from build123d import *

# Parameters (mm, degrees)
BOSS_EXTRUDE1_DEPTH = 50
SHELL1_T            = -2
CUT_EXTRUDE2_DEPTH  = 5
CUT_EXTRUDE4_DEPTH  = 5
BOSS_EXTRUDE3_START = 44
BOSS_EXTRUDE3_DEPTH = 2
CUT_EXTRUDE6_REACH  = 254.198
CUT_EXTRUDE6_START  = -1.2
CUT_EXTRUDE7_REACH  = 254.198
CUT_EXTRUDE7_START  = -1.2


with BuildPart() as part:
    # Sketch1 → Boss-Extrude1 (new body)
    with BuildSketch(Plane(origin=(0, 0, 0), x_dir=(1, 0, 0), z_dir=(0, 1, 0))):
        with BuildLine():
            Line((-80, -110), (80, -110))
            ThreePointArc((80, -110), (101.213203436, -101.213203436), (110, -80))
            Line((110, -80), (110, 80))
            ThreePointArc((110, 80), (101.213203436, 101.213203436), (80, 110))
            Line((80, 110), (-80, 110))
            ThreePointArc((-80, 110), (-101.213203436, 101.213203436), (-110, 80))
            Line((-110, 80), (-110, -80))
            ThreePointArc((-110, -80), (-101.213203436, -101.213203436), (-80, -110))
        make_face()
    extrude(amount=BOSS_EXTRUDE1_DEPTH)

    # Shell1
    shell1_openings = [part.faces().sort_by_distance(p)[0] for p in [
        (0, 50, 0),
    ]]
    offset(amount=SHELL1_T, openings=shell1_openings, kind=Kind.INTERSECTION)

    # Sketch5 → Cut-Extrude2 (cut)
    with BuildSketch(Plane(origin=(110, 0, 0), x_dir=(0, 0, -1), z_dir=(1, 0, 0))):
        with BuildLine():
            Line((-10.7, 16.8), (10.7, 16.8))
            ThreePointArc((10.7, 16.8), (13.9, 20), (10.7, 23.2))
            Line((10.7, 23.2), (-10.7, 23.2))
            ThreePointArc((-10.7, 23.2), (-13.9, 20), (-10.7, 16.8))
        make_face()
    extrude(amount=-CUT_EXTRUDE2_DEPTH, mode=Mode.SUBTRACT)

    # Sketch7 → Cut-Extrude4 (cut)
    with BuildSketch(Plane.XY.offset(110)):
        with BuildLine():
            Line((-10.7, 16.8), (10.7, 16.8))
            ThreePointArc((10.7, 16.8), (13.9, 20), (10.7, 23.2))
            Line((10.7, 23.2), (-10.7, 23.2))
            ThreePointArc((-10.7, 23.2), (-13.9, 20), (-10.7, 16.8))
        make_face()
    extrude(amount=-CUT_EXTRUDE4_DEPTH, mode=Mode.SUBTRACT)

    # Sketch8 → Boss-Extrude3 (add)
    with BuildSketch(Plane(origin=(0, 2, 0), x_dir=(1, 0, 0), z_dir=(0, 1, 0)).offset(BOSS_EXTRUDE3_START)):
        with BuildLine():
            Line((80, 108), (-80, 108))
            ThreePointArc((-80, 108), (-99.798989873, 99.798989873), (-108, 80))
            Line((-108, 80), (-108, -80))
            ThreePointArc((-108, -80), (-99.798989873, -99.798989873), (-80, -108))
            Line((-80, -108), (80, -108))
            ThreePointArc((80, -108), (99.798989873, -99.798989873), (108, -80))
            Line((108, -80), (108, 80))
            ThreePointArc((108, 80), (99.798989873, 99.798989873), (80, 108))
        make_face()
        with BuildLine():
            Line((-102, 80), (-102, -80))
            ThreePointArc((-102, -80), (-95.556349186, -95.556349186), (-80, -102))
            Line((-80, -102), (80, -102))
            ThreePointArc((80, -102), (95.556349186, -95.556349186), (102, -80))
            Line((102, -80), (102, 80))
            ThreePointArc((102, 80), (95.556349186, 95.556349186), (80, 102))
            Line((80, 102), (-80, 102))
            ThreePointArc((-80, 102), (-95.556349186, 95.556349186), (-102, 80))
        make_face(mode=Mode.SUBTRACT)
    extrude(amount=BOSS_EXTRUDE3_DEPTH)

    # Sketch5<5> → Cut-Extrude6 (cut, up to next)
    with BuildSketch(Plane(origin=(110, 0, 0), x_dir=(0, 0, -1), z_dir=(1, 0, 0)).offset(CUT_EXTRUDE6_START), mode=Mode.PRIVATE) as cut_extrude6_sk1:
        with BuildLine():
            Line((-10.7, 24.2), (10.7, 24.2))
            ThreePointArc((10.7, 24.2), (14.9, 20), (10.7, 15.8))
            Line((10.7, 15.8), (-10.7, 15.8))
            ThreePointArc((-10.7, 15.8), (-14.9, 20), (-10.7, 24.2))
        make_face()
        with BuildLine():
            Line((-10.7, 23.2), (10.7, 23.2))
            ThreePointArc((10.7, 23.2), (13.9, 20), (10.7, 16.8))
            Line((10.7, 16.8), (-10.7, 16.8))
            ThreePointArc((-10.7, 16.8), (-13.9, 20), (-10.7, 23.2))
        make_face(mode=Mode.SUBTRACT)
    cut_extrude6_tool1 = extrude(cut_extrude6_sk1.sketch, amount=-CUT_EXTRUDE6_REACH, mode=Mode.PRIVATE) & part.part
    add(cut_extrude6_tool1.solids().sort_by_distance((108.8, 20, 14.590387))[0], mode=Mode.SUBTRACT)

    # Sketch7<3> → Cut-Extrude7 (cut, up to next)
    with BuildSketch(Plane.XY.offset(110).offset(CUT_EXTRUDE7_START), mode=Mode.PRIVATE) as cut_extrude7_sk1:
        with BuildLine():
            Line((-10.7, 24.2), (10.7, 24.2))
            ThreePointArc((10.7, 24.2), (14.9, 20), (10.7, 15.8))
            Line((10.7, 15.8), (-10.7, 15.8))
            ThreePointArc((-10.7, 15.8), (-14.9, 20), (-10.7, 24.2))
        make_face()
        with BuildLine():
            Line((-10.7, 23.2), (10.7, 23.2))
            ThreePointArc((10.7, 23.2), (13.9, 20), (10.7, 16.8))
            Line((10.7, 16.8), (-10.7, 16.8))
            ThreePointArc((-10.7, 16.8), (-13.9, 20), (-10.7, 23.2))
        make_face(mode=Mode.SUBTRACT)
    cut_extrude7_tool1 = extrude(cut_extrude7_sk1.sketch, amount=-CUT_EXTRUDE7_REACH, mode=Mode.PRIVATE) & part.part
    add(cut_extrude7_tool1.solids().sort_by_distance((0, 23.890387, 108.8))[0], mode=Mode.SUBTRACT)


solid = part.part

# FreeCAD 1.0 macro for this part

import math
import FreeCAD as App
import Part
import Sketcher
Q = App.Units.Quantity


def faces_at(feature, points):
    """Names of the faces that lie closest to the given points."""
    faces = feature.Shape.Faces
    near = lambda p: min(range(len(faces)), key=lambda i: faces[i].distToShape(Part.Vertex(*p))[0])
    return sorted({f"Face{near(p) + 1}" for p in points})

doc = App.newDocument("Part")
body = doc.addObject("PartDesign::Body", "Body")

# Sketch on XZ plane
sketch1 = body.newObject("Sketcher::SketchObject", "Sketch")
sketch1.AttachmentSupport = (doc.getObject("XZ_Plane"), [""])
sketch1.MapMode = "FlatFace"
sketch1.addGeometry([
    Part.LineSegment(App.Vector(-80, 110, 0), App.Vector(80, 110, 0)),  # 0
    Part.ArcOfCircle(Part.Circle(App.Vector(80, 80, 0), App.Vector(0, 0, 1), 30), math.radians(0), math.radians(90)),  # 1
    Part.LineSegment(App.Vector(110, 80, 0), App.Vector(110, -80, 0)),  # 2
    Part.ArcOfCircle(Part.Circle(App.Vector(80, -80, 0), App.Vector(0, 0, 1), 30), math.radians(-90), math.radians(0)),  # 3
    Part.LineSegment(App.Vector(80, -110, 0), App.Vector(-80, -110, 0)),  # 4
    Part.ArcOfCircle(Part.Circle(App.Vector(-80, -80, 0), App.Vector(0, 0, 1), 30), math.radians(180), math.radians(270)),  # 5
    Part.LineSegment(App.Vector(-110, -80, 0), App.Vector(-110, 80, 0)),  # 6
    Part.ArcOfCircle(Part.Circle(App.Vector(-80, 80, 0), App.Vector(0, 0, 1), 30), math.radians(90), math.radians(180)),  # 7
], False)
sketch1.addConstraint([
    Sketcher.Constraint("Tangent", 0, 2, 1, 2),
    Sketcher.Constraint("Tangent", 1, 1, 2, 1),
    Sketcher.Constraint("Tangent", 2, 2, 3, 2),
    Sketcher.Constraint("Tangent", 3, 1, 4, 1),
    Sketcher.Constraint("Tangent", 4, 2, 5, 2),
    Sketcher.Constraint("Tangent", 5, 1, 6, 1),
    Sketcher.Constraint("Tangent", 6, 2, 7, 2),
    Sketcher.Constraint("Tangent", 7, 1, 0, 1),
    Sketcher.Constraint("Horizontal", 0),
    Sketcher.Constraint("Vertical", 2),
    Sketcher.Constraint("Horizontal", 4),
    Sketcher.Constraint("Vertical", 6),
    Sketcher.Constraint("Equal", 1, 3),
    Sketcher.Constraint("Equal", 3, 5),
    Sketcher.Constraint("Equal", 5, 7),
    Sketcher.Constraint("Symmetric", 1, 3, 5, 3, -1, 1),
    Sketcher.Constraint("Equal", 4, 2),
    Sketcher.Constraint("Radius", 1, Q("30 mm")),
    Sketcher.Constraint("DistanceX", 0, 1, 0, 2, Q("160 mm")),
])
pad1 = body.newObject("PartDesign::Pad", "Pad")
pad1.Profile = sketch1
pad1.Length = 50
pad1.Reversed = True
doc.recompute()

thickness = body.newObject("PartDesign::Thickness", "Thickness")
thickness.Base = (pad1, faces_at(pad1, [(0, 50, 0)]))
thickness.Value = 2
thickness.Reversed = True
thickness.Join = "Intersection"

# Sketch on YZ plane
sketch2 = body.newObject("Sketcher::SketchObject", "Sketch001")
sketch2.AttachmentSupport = (doc.getObject("YZ_Plane"), [""])
sketch2.MapMode = "FlatFace"
sketch2.AttachmentOffset = App.Placement(App.Vector(0, 0, 110), App.Rotation())
sketch2.addGeometry([
    Part.LineSegment(App.Vector(16.8, 10.7, 0), App.Vector(16.8, -10.7, 0)),
    Part.ArcOfCircle(Part.Circle(App.Vector(20, -10.7, 0), App.Vector(0, 0, 1), 3.2), math.radians(180), math.radians(360)),
    Part.LineSegment(App.Vector(23.2, -10.7, 0), App.Vector(23.2, 10.7, 0)),
    Part.ArcOfCircle(Part.Circle(App.Vector(20, 10.7, 0), App.Vector(0, 0, 1), 3.2), math.radians(0), math.radians(180)),
], False)
sketch2.addConstraint([
    Sketcher.Constraint("Tangent", 0, 2, 1, 1),
    Sketcher.Constraint("Tangent", 1, 2, 2, 1),
    Sketcher.Constraint("Tangent", 2, 2, 3, 1),
    Sketcher.Constraint("Tangent", 3, 2, 0, 1),
    Sketcher.Constraint("Vertical", 0),
    Sketcher.Constraint("Vertical", 2),
    Sketcher.Constraint("Radius", 1, Q("3.2 mm")),
    Sketcher.Constraint("DistanceY", 0, 2, 0, 1, Q("21.4 mm")),
    Sketcher.Constraint("DistanceX", -1, 1, 1, 3, Q("20 mm")),
    Sketcher.Constraint("DistanceY", 1, 3, -1, 1, Q("10.7 mm")),
])
pocket1 = body.newObject("PartDesign::Pocket", "Pocket")
pocket1.Profile = sketch2
pocket1.Length = 5

# Sketch on XY plane
sketch3 = body.newObject("Sketcher::SketchObject", "Sketch002")
sketch3.AttachmentSupport = (doc.getObject("XY_Plane"), [""])
sketch3.MapMode = "FlatFace"
sketch3.AttachmentOffset = App.Placement(App.Vector(0, 0, 110), App.Rotation())
sketch3.addGeometry([
    Part.LineSegment(App.Vector(-10.7, 16.8, 0), App.Vector(10.7, 16.8, 0)),
    Part.ArcOfCircle(Part.Circle(App.Vector(10.7, 20, 0), App.Vector(0, 0, 1), 3.2), math.radians(-90), math.radians(90)),
    Part.LineSegment(App.Vector(10.7, 23.2, 0), App.Vector(-10.7, 23.2, 0)),
    Part.ArcOfCircle(Part.Circle(App.Vector(-10.7, 20, 0), App.Vector(0, 0, 1), 3.2), math.radians(90), math.radians(270)),
], False)
sketch3.addConstraint([
    Sketcher.Constraint("Tangent", 0, 2, 1, 1),
    Sketcher.Constraint("Tangent", 1, 2, 2, 1),
    Sketcher.Constraint("Tangent", 2, 2, 3, 1),
    Sketcher.Constraint("Tangent", 3, 2, 0, 1),
    Sketcher.Constraint("Horizontal", 0),
    Sketcher.Constraint("Horizontal", 2),
    Sketcher.Constraint("Radius", 1, Q("3.2 mm")),
    Sketcher.Constraint("DistanceX", 0, 1, 0, 2, Q("21.4 mm")),
    Sketcher.Constraint("DistanceY", -1, 1, 1, 3, Q("20 mm")),
    Sketcher.Constraint("DistanceX", -1, 1, 1, 3, Q("10.7 mm")),
])
pocket2 = body.newObject("PartDesign::Pocket", "Pocket001")
pocket2.Profile = sketch3
pocket2.Length = 5

# Sketch on XZ plane
sketch4 = body.newObject("Sketcher::SketchObject", "Sketch003")
sketch4.AttachmentSupport = (doc.getObject("XZ_Plane"), [""])
sketch4.MapMode = "FlatFace"
sketch4.AttachmentOffset = App.Placement(App.Vector(0, 0, -46), App.Rotation())
sketch4.addGeometry([
    Part.LineSegment(App.Vector(80, -108, 0), App.Vector(-80, -108, 0)),  # 0
    Part.ArcOfCircle(Part.Circle(App.Vector(-80, -80, 0), App.Vector(0, 0, 1), 28), math.radians(-180), math.radians(-90)),  # 1
    Part.LineSegment(App.Vector(-108, -80, 0), App.Vector(-108, 80, 0)),  # 2
    Part.ArcOfCircle(Part.Circle(App.Vector(-80, 80, 0), App.Vector(0, 0, 1), 28), math.radians(90), math.radians(180)),  # 3
    Part.LineSegment(App.Vector(-80, 108, 0), App.Vector(80, 108, 0)),  # 4
    Part.ArcOfCircle(Part.Circle(App.Vector(80, 80, 0), App.Vector(0, 0, 1), 28), math.radians(0), math.radians(90)),  # 5
    Part.LineSegment(App.Vector(108, 80, 0), App.Vector(108, -80, 0)),  # 6
    Part.ArcOfCircle(Part.Circle(App.Vector(80, -80, 0), App.Vector(0, 0, 1), 28), math.radians(-90), math.radians(0)),  # 7
    Part.LineSegment(App.Vector(-102, 80, 0), App.Vector(-102, -80, 0)),  # 8
    Part.ArcOfCircle(Part.Circle(App.Vector(-80, -80, 0), App.Vector(0, 0, 1), 22), math.radians(180), math.radians(270)),  # 9
    Part.LineSegment(App.Vector(-80, -102, 0), App.Vector(80, -102, 0)),  # 10
    Part.ArcOfCircle(Part.Circle(App.Vector(80, -80, 0), App.Vector(0, 0, 1), 22), math.radians(-90), math.radians(0)),  # 11
    Part.LineSegment(App.Vector(102, -80, 0), App.Vector(102, 80, 0)),  # 12
    Part.ArcOfCircle(Part.Circle(App.Vector(80, 80, 0), App.Vector(0, 0, 1), 22), math.radians(0), math.radians(90)),  # 13
    Part.LineSegment(App.Vector(80, 102, 0), App.Vector(-80, 102, 0)),  # 14
    Part.ArcOfCircle(Part.Circle(App.Vector(-80, 80, 0), App.Vector(0, 0, 1), 22), math.radians(90), math.radians(180)),  # 15
], False)
sketch4.addConstraint([
    Sketcher.Constraint("Tangent", 0, 2, 1, 2),
    Sketcher.Constraint("Tangent", 1, 1, 2, 1),
    Sketcher.Constraint("Tangent", 2, 2, 3, 2),
    Sketcher.Constraint("Tangent", 3, 1, 4, 1),
    Sketcher.Constraint("Tangent", 4, 2, 5, 2),
    Sketcher.Constraint("Tangent", 5, 1, 6, 1),
    Sketcher.Constraint("Tangent", 6, 2, 7, 2),
    Sketcher.Constraint("Tangent", 7, 1, 0, 1),
    Sketcher.Constraint("Tangent", 8, 2, 9, 1),
    Sketcher.Constraint("Tangent", 9, 2, 10, 1),
    Sketcher.Constraint("Tangent", 10, 2, 11, 1),
    Sketcher.Constraint("Tangent", 11, 2, 12, 1),
    Sketcher.Constraint("Tangent", 12, 2, 13, 1),
    Sketcher.Constraint("Tangent", 13, 2, 14, 1),
    Sketcher.Constraint("Tangent", 14, 2, 15, 1),
    Sketcher.Constraint("Tangent", 15, 2, 8, 1),
    Sketcher.Constraint("Horizontal", 0),
    Sketcher.Constraint("Vertical", 2),
    Sketcher.Constraint("Horizontal", 4),
    Sketcher.Constraint("Vertical", 6),
    Sketcher.Constraint("Vertical", 8),
    Sketcher.Constraint("Horizontal", 10),
    Sketcher.Constraint("Vertical", 12),
    Sketcher.Constraint("Horizontal", 14),
    Sketcher.Constraint("Coincident", 9, 3, 1, 3),
    Sketcher.Constraint("Coincident", 11, 3, 7, 3),
    Sketcher.Constraint("Coincident", 13, 3, 5, 3),
    Sketcher.Constraint("Equal", 1, 3),
    Sketcher.Constraint("Equal", 3, 5),
    Sketcher.Constraint("Equal", 5, 7),
    Sketcher.Constraint("Equal", 13, 15),
    Sketcher.Constraint("Symmetric", 1, 3, 5, 3, -1, 1),
    Sketcher.Constraint("Equal", 14, 2),
    Sketcher.Constraint("Radius", 1, Q("28 mm")),
    Sketcher.Constraint("Radius", 9, Q("22 mm")),
    Sketcher.Constraint("DistanceX", 0, 2, 0, 1, Q("160 mm")),
])
pad2 = body.newObject("PartDesign::Pad", "Pad001")
pad2.Profile = sketch4
pad2.Length = 2
pad2.Reversed = True

# Sketch on YZ plane
sketch5 = body.newObject("Sketcher::SketchObject", "Sketch004")
sketch5.AttachmentSupport = (doc.getObject("YZ_Plane"), [""])
sketch5.MapMode = "FlatFace"
sketch5.AttachmentOffset = App.Placement(App.Vector(0, 0, 108.8), App.Rotation())
sketch5.addGeometry([
    Part.LineSegment(App.Vector(24.2, -10.7, 0), App.Vector(24.2, 10.7, 0)),  # 0
    Part.ArcOfCircle(Part.Circle(App.Vector(20, 10.7, 0), App.Vector(0, 0, 1), 4.2), math.radians(0), math.radians(180)),  # 1
    Part.LineSegment(App.Vector(15.8, 10.7, 0), App.Vector(15.8, -10.7, 0)),  # 2
    Part.ArcOfCircle(Part.Circle(App.Vector(20, -10.7, 0), App.Vector(0, 0, 1), 4.2), math.radians(180), math.radians(360)),  # 3
    Part.LineSegment(App.Vector(23.2, 10.7, 0), App.Vector(23.2, -10.7, 0)),  # 4
    Part.ArcOfCircle(Part.Circle(App.Vector(20, -10.7, 0), App.Vector(0, 0, 1), 3.2), math.radians(180), math.radians(360)),  # 5
    Part.LineSegment(App.Vector(16.8, -10.7, 0), App.Vector(16.8, 10.7, 0)),  # 6
    Part.ArcOfCircle(Part.Circle(App.Vector(20, 10.7, 0), App.Vector(0, 0, 1), 3.2), math.radians(0), math.radians(180)),  # 7
], False)
sketch5.addConstraint([
    Sketcher.Constraint("Tangent", 0, 2, 1, 1),
    Sketcher.Constraint("Tangent", 1, 2, 2, 1),
    Sketcher.Constraint("Tangent", 2, 2, 3, 1),
    Sketcher.Constraint("Tangent", 3, 2, 0, 1),
    Sketcher.Constraint("Tangent", 4, 2, 5, 2),
    Sketcher.Constraint("Tangent", 5, 1, 6, 1),
    Sketcher.Constraint("Tangent", 6, 2, 7, 2),
    Sketcher.Constraint("Tangent", 7, 1, 4, 1),
    Sketcher.Constraint("Vertical", 0),
    Sketcher.Constraint("Vertical", 2),
    Sketcher.Constraint("Vertical", 4),
    Sketcher.Constraint("Vertical", 6),
    Sketcher.Constraint("Coincident", 5, 3, 3, 3),
    Sketcher.Constraint("Horizontal", 7, 3, 0, 2),
    Sketcher.Constraint("Radius", 1, Q("4.2 mm")),
    Sketcher.Constraint("Radius", 5, Q("3.2 mm")),
    Sketcher.Constraint("DistanceY", 0, 1, 0, 2, Q("21.4 mm")),
    Sketcher.Constraint("DistanceX", -1, 1, 1, 3, Q("20 mm")),
    Sketcher.Constraint("DistanceY", -1, 1, 1, 3, Q("10.7 mm")),
])
pocket3 = body.newObject("PartDesign::Pocket", "Pocket002")
pocket3.Profile = sketch5
pocket3.Type = "UpToFirst"

# Sketch on XY plane
sketch6 = body.newObject("Sketcher::SketchObject", "Sketch005")
sketch6.AttachmentSupport = (doc.getObject("XY_Plane"), [""])
sketch6.MapMode = "FlatFace"
sketch6.AttachmentOffset = App.Placement(App.Vector(0, 0, 108.8), App.Rotation())
sketch6.addGeometry([
    Part.LineSegment(App.Vector(10.7, 24.2, 0), App.Vector(-10.7, 24.2, 0)),  # 0
    Part.ArcOfCircle(Part.Circle(App.Vector(-10.7, 20, 0), App.Vector(0, 0, 1), 4.2), math.radians(90), math.radians(270)),  # 1
    Part.LineSegment(App.Vector(-10.7, 15.8, 0), App.Vector(10.7, 15.8, 0)),  # 2
    Part.ArcOfCircle(Part.Circle(App.Vector(10.7, 20, 0), App.Vector(0, 0, 1), 4.2), math.radians(-90), math.radians(90)),  # 3
    Part.LineSegment(App.Vector(-10.7, 23.2, 0), App.Vector(10.7, 23.2, 0)),  # 4
    Part.ArcOfCircle(Part.Circle(App.Vector(10.7, 20, 0), App.Vector(0, 0, 1), 3.2), math.radians(-90), math.radians(90)),  # 5
    Part.LineSegment(App.Vector(10.7, 16.8, 0), App.Vector(-10.7, 16.8, 0)),  # 6
    Part.ArcOfCircle(Part.Circle(App.Vector(-10.7, 20, 0), App.Vector(0, 0, 1), 3.2), math.radians(90), math.radians(270)),  # 7
], False)
sketch6.addConstraint([
    Sketcher.Constraint("Tangent", 0, 2, 1, 1),
    Sketcher.Constraint("Tangent", 1, 2, 2, 1),
    Sketcher.Constraint("Tangent", 2, 2, 3, 1),
    Sketcher.Constraint("Tangent", 3, 2, 0, 1),
    Sketcher.Constraint("Tangent", 4, 2, 5, 2),
    Sketcher.Constraint("Tangent", 5, 1, 6, 1),
    Sketcher.Constraint("Tangent", 6, 2, 7, 2),
    Sketcher.Constraint("Tangent", 7, 1, 4, 1),
    Sketcher.Constraint("Horizontal", 0),
    Sketcher.Constraint("Horizontal", 2),
    Sketcher.Constraint("Horizontal", 4),
    Sketcher.Constraint("Horizontal", 6),
    Sketcher.Constraint("Coincident", 5, 3, 3, 3),
    Sketcher.Constraint("Vertical", 7, 3, 0, 2),
    Sketcher.Constraint("Radius", 1, Q("4.2 mm")),
    Sketcher.Constraint("Radius", 5, Q("3.2 mm")),
    Sketcher.Constraint("DistanceX", 0, 2, 0, 1, Q("21.4 mm")),
    Sketcher.Constraint("DistanceY", -1, 1, 1, 3, Q("20 mm")),
    Sketcher.Constraint("DistanceX", 1, 3, -1, 1, Q("10.7 mm")),
])
pocket4 = body.newObject("PartDesign::Pocket", "Pocket003")
pocket4.Profile = sketch6
pocket4.Type = "UpToFirst"

doc.recompute()
